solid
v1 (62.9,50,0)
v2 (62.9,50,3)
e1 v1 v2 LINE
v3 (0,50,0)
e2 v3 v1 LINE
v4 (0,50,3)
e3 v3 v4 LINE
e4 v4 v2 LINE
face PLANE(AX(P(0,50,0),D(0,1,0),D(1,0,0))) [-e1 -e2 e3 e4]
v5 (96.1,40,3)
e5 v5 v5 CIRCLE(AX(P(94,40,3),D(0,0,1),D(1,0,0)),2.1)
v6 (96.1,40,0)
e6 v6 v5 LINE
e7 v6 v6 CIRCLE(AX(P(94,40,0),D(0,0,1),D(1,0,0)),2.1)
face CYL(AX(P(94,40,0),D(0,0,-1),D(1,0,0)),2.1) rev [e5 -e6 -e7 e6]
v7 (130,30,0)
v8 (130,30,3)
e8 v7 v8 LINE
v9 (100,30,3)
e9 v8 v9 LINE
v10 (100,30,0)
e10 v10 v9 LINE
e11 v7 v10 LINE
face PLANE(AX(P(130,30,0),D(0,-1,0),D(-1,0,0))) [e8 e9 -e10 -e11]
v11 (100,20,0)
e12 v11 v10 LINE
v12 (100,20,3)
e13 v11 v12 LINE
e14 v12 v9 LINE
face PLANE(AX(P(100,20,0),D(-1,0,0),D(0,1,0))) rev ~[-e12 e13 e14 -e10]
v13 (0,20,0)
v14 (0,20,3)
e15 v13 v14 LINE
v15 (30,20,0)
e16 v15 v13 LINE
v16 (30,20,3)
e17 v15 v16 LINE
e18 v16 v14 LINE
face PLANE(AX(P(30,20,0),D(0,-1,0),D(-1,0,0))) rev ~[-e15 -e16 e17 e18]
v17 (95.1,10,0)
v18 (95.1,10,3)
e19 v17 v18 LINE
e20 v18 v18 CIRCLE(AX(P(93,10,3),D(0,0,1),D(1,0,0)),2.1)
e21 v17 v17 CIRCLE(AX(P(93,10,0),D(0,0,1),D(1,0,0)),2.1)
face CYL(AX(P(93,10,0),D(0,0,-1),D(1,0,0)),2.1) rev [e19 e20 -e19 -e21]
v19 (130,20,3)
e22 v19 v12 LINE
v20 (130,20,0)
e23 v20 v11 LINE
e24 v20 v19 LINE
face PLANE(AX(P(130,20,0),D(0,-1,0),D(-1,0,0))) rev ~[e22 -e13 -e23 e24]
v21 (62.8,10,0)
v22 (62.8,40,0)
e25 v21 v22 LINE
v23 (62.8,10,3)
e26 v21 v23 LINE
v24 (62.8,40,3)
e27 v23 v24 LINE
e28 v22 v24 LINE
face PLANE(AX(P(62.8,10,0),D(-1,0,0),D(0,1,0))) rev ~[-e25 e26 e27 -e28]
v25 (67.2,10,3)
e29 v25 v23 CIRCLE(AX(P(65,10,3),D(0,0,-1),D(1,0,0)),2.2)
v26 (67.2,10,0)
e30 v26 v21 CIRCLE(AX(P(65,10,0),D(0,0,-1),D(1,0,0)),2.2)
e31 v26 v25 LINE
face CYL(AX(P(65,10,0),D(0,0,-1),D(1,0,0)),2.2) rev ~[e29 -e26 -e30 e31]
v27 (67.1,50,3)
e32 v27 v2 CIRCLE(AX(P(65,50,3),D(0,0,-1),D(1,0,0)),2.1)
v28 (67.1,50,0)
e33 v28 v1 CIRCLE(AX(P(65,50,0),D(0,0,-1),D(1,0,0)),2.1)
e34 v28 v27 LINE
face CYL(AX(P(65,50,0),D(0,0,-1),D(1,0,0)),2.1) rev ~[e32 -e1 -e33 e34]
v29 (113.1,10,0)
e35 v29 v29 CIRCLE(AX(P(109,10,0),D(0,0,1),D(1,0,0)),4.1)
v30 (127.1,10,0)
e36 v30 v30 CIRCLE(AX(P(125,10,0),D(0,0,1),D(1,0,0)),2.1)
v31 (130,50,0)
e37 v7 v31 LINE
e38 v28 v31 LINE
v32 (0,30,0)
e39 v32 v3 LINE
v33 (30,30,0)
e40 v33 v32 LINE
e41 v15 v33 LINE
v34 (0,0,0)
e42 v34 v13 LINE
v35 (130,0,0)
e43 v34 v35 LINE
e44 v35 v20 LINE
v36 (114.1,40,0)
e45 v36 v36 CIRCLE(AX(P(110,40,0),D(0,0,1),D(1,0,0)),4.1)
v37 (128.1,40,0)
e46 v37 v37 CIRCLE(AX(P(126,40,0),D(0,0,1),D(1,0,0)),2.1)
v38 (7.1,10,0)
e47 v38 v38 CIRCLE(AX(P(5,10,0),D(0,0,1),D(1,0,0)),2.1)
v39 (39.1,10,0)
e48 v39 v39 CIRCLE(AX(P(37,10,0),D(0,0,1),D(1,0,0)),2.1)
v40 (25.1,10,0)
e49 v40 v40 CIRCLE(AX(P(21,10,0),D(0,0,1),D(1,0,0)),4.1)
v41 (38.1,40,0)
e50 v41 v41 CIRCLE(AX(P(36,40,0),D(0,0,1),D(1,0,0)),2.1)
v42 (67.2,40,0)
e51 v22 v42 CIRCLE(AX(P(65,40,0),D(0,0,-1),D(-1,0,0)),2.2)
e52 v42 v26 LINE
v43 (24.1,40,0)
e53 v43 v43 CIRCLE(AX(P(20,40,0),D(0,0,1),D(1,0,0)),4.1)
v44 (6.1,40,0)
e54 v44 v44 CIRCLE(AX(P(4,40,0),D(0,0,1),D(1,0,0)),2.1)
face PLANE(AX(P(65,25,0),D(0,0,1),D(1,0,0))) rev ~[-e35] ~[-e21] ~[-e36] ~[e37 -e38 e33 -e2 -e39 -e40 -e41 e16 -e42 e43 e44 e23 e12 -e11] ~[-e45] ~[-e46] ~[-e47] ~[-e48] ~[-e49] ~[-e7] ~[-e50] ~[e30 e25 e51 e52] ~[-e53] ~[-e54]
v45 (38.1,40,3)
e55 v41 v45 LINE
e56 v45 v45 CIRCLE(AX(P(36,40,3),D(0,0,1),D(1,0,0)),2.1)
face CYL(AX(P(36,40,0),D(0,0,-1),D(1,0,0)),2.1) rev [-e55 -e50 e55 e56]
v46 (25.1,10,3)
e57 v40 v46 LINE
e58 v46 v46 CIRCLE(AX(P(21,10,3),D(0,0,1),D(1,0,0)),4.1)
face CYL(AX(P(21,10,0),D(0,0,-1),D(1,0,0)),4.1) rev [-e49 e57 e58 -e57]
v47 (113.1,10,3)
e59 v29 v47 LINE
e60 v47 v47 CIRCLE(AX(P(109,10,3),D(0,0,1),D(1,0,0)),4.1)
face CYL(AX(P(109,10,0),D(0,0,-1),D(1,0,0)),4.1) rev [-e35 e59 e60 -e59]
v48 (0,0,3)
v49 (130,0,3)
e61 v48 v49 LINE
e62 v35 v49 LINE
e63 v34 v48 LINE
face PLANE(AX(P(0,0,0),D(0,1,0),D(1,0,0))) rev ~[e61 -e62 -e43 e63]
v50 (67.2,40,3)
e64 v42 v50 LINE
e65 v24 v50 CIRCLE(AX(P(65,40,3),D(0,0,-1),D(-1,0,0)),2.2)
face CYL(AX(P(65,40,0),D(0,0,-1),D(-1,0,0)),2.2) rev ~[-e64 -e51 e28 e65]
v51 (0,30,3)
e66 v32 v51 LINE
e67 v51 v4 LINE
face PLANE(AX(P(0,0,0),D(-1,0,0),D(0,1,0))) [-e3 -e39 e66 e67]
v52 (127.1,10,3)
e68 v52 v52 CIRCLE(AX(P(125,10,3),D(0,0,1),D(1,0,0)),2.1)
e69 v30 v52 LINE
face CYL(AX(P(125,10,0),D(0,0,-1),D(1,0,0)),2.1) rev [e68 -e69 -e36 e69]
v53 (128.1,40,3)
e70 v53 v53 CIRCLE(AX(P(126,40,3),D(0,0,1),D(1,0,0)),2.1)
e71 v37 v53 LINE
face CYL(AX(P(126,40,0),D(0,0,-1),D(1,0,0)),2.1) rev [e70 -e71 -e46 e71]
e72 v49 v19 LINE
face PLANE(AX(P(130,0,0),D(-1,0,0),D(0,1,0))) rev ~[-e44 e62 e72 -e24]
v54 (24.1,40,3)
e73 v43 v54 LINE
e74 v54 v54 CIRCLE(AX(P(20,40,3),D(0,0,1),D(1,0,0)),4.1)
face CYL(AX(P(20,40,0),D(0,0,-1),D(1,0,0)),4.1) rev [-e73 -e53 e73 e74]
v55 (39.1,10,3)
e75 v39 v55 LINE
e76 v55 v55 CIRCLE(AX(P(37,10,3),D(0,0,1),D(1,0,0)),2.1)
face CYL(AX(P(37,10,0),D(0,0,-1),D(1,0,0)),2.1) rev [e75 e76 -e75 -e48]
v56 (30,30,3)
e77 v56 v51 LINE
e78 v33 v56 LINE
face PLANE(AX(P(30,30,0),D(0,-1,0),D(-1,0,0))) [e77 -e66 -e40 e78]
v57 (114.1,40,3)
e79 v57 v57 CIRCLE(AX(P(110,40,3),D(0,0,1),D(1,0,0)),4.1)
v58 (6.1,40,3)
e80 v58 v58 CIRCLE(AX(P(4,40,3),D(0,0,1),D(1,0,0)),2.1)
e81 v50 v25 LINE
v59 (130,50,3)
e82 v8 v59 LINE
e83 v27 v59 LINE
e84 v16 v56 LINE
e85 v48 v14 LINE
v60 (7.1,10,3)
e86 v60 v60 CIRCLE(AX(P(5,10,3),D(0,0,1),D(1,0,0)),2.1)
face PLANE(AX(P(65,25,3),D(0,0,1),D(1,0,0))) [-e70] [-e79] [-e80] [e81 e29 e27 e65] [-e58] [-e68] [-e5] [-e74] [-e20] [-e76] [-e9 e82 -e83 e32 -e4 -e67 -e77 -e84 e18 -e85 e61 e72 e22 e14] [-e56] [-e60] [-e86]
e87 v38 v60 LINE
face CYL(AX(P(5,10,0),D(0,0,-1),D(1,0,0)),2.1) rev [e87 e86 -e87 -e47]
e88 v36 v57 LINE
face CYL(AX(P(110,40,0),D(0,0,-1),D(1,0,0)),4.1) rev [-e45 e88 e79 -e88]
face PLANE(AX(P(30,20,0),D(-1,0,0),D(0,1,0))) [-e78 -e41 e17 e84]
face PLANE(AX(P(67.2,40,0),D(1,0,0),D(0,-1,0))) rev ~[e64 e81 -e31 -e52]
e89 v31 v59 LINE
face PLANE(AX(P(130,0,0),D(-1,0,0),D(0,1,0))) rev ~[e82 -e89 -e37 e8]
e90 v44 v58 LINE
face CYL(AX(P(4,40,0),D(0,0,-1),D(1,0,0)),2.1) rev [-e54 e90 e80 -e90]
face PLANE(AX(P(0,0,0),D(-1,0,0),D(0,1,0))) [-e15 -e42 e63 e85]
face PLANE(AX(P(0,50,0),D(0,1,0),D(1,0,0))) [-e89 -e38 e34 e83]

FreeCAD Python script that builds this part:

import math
import FreeCAD as App
import Part
import Sketcher

V = App.Vector

doc = App.newDocument("Part")
body = doc.addObject("PartDesign::Body", "Body")

sketch1 = body.newObject("Sketcher::SketchObject", "Sketch")
sketch1.AttachmentSupport = (doc.getObject("XY_Plane"), [""])
sketch1.MapMode = "FlatFace"
sketch1.addGeometry([
    Part.LineSegment(V(0, 50, 0), V(0, 0, 0)),
    Part.LineSegment(V(0, 0, 0), V(130, 0, 0)),
    Part.LineSegment(V(130, 0, 0), V(130, 50, 0)),
    Part.LineSegment(V(130, 50, 0), V(0, 50, 0)),
    Part.Circle(V(5, 10, 0), V(0, 0, 1), 2.1),
    Part.Circle(V(21, 10, 0), V(0, 0, 1), 4.1),
    Part.Circle(V(37, 10, 0), V(0, 0, 1), 2.1),
    Part.Circle(V(93, 10, 0), V(0, 0, 1), 2.1),
    Part.Circle(V(109, 10, 0), V(0, 0, 1), 4.1),
    Part.Circle(V(125, 10, 0), V(0, 0, 1), 2.1),
    Part.ArcOfCircle(Part.Circle(V(65, 10, 0), V(0, 0, 1), 2.2), math.radians(180), math.radians(360)),
    Part.LineSegment(V(62.8, 10, 0), V(62.8, 40, 0)),
    Part.ArcOfCircle(Part.Circle(V(65, 40, 0), V(0, 0, 1), 2.2), math.radians(0), math.radians(180)),
    Part.LineSegment(V(67.2, 40, 0), V(67.2, 10, 0)),
    Part.Circle(V(4, 40, 0), V(0, 0, 1), 2.1),
    Part.Circle(V(20, 40, 0), V(0, 0, 1), 4.1),
    Part.Circle(V(36, 40, 0), V(0, 0, 1), 2.1),
    Part.Circle(V(94, 40, 0), V(0, 0, 1), 2.1),
    Part.Circle(V(110, 40, 0), V(0, 0, 1), 4.1),
    Part.Circle(V(126, 40, 0), V(0, 0, 1), 2.1),
], False)
sketch1.addConstraint([
    Sketcher.Constraint("Coincident", 0, 2, 1, 1),
    Sketcher.Constraint("Coincident", 1, 2, 2, 1),
    Sketcher.Constraint("Coincident", 2, 2, 3, 1),
    Sketcher.Constraint("Coincident", 3, 2, 0, 1),
    Sketcher.Constraint("Tangent", 10, 1, 11, 1),
    Sketcher.Constraint("Tangent", 11, 2, 12, 2),
    Sketcher.Constraint("Tangent", 12, 1, 13, 1),
    Sketcher.Constraint("Tangent", 13, 2, 10, 2),
    Sketcher.Constraint("Vertical", 0),
    Sketcher.Constraint("Horizontal", 1),
    Sketcher.Constraint("Vertical", 2),
    Sketcher.Constraint("Horizontal", 3),
    Sketcher.Constraint("Vertical", 11),
    Sketcher.Constraint("Vertical", 13),
    Sketcher.Constraint("Coincident", 0, 2, -1, 1),
    Sketcher.Constraint("Equal", 4, 6),
    Sketcher.Constraint("Equal", 6, 7),
    Sketcher.Constraint("Equal", 5, 8),
    Sketcher.Constraint("Equal", 7, 9),
    Sketcher.Constraint("Equal", 9, 14),
    Sketcher.Constraint("Equal", 8, 15),
    Sketcher.Constraint("Equal", 14, 16),
    Sketcher.Constraint("Equal", 16, 17),
    Sketcher.Constraint("Equal", 15, 18),
    Sketcher.Constraint("Equal", 17, 19),
    Sketcher.Constraint("Horizontal", 4, 3, 5, 3),
    Sketcher.Constraint("Horizontal", 5, 3, 6, 3),
    Sketcher.Constraint("Horizontal", 6, 3, 7, 3),
    Sketcher.Constraint("Horizontal", 7, 3, 8, 3),
    Sketcher.Constraint("Horizontal", 8, 3, 9, 3),
    Sketcher.Constraint("Horizontal", 9, 3, 10, 3),
    Sketcher.Constraint("Horizontal", 12, 3, 14, 3),
    Sketcher.Constraint("Horizontal", 14, 3, 15, 3),
    Sketcher.Constraint("Horizontal", 15, 3, 16, 3),
    Sketcher.Constraint("Horizontal", 16, 3, 17, 3),
    Sketcher.Constraint("Horizontal", 17, 3, 18, 3),
    Sketcher.Constraint("Horizontal", 18, 3, 19, 3),
    Sketcher.Constraint("Diameter", 4, 4.2),
    Sketcher.Constraint("Diameter", 5, 8.2),
    Sketcher.Constraint("Radius", 10, 2.2),
    Sketcher.Constraint("DistanceX", 1, 1, 1, 2, 130.0),
    Sketcher.Constraint("DistanceY", 0, 2, 0, 1, 50.0),
    Sketcher.Constraint("DistanceY", 11, 1, 11, 2, 30.0),
    Sketcher.Constraint("DistanceX", -1, 1, 4, 3, 5.0),
    Sketcher.Constraint("DistanceY", -1, 1, 4, 3, 10.0),
    Sketcher.Constraint("DistanceX", -1, 1, 5, 3, 21.0),
    Sketcher.Constraint("DistanceX", -1, 1, 6, 3, 37.0),
    Sketcher.Constraint("DistanceX", -1, 1, 7, 3, 93.0),
    Sketcher.Constraint("DistanceX", -1, 1, 8, 3, 109.0),
    Sketcher.Constraint("DistanceX", -1, 1, 9, 3, 125.0),
    Sketcher.Constraint("DistanceX", -1, 1, 10, 3, 65.0),
    Sketcher.Constraint("DistanceX", -1, 1, 14, 3, 4.0),
    Sketcher.Constraint("DistanceX", -1, 1, 15, 3, 20.0),
    Sketcher.Constraint("DistanceX", -1, 1, 16, 3, 36.0),
    Sketcher.Constraint("DistanceX", -1, 1, 17, 3, 94.0),
    Sketcher.Constraint("DistanceX", -1, 1, 18, 3, 110.0),
    Sketcher.Constraint("DistanceX", -1, 1, 19, 3, 126.0),
])
pad1 = body.newObject("PartDesign::Pad", "Pad")
pad1.Profile = sketch1
pad1.Length = 3

sketch2 = body.newObject("Sketcher::SketchObject", "Sketch001")
sketch2.AttachmentSupport = (doc.getObject("XY_Plane"), [""])
sketch2.MapMode = "FlatFace"
sketch2.addGeometry([
    Part.LineSegment(V(30, 30, 0), V(30, 20, 0)),
    Part.LineSegment(V(30, 20, 0), V(0, 20, 0)),
    Part.LineSegment(V(0, 20, 0), V(0, 30, 0)),
    Part.LineSegment(V(0, 30, 0), V(30, 30, 0)),
], False)
sketch2.addConstraint([
    Sketcher.Constraint("Coincident", 0, 2, 1, 1),
    Sketcher.Constraint("Coincident", 1, 2, 2, 1),
    Sketcher.Constraint("Coincident", 2, 2, 3, 1),
    Sketcher.Constraint("Coincident", 3, 2, 0, 1),
    Sketcher.Constraint("Vertical", 0),
    Sketcher.Constraint("Horizontal", 1),
    Sketcher.Constraint("Vertical", 2),
    Sketcher.Constraint("Horizontal", 3),
    Sketcher.Constraint("PointOnObject", 1, 2, -2),
    Sketcher.Constraint("DistanceX", 1, 2, 1, 1, 30.0),
    Sketcher.Constraint("DistanceY", 0, 2, 0, 1, 10.0),
    Sketcher.Constraint("DistanceY", -1, 1, 0, 2, 20.0),
])
pocket1 = body.newObject("PartDesign::Pocket", "Pocket")
pocket1.Profile = sketch2
pocket1.Type = "UpToFirst"
pocket1.Reversed = True

sketch3 = body.newObject("Sketcher::SketchObject", "Sketch002")
sketch3.AttachmentSupport = (doc.getObject("XY_Plane"), [""])
sketch3.MapMode = "FlatFace"
sketch3.addGeometry([
    Part.LineSegment(V(130, 30, 0), V(130, 20, 0)),
    Part.LineSegment(V(130, 20, 0), V(100, 20, 0)),
    Part.LineSegment(V(100, 20, 0), V(100, 30, 0)),
    Part.LineSegment(V(100, 30, 0), V(130, 30, 0)),
], False)
sketch3.addConstraint([
    Sketcher.Constraint("Coincident", 0, 2, 1, 1),
    Sketcher.Constraint("Coincident", 1, 2, 2, 1),
    Sketcher.Constraint("Coincident", 2, 2, 3, 1),
    Sketcher.Constraint("Coincident", 3, 2, 0, 1),
    Sketcher.Constraint("Vertical", 0),
    Sketcher.Constraint("Horizontal", 1),
    Sketcher.Constraint("Vertical", 2),
    Sketcher.Constraint("Horizontal", 3),
    Sketcher.Constraint("DistanceX", 1, 2, 1, 1, 30.0),
    Sketcher.Constraint("DistanceY", 0, 2, 0, 1, 10.0),
    Sketcher.Constraint("DistanceX", -1, 1, 0, 2, 130.0),
    Sketcher.Constraint("DistanceY", -1, 1, 0, 2, 20.0),
])
pocket2 = body.newObject("PartDesign::Pocket", "Pocket001")
pocket2.Profile = sketch3
pocket2.Type = "UpToFirst"
pocket2.Reversed = True

sketch4 = body.newObject("Sketcher::SketchObject", "Sketch003")
sketch4.AttachmentSupport = (doc.getObject("XY_Plane"), [""])
sketch4.MapMode = "FlatFace"
sketch4.addGeometry([
    Part.LineSegment(V(62.9, 50, 0), V(67.1, 50, 0)),
    Part.ArcOfCircle(Part.Circle(V(65, 50, 0), V(0, 0, 1), 2.1), math.radians(180), math.radians(360)),
], False)
sketch4.addConstraint([
    Sketcher.Constraint("Coincident", 0, 1, 1, 1),
    Sketcher.Constraint("Coincident", 1, 2, 0, 2),
    Sketcher.Constraint("Horizontal", 0),
    Sketcher.Constraint("Horizontal", 1, 3, 0, 1),
    Sketcher.Constraint("Radius", 1, 2.1),
    Sketcher.Constraint("DistanceX", -1, 1, 1, 3, 65.0),
    Sketcher.Constraint("DistanceY", -1, 1, 1, 3, 50.0),
])
pocket3 = body.newObject("PartDesign::Pocket", "Pocket002")
pocket3.Profile = sketch4
pocket3.Type = "UpToFirst"
pocket3.Reversed = True

doc.recompute()
